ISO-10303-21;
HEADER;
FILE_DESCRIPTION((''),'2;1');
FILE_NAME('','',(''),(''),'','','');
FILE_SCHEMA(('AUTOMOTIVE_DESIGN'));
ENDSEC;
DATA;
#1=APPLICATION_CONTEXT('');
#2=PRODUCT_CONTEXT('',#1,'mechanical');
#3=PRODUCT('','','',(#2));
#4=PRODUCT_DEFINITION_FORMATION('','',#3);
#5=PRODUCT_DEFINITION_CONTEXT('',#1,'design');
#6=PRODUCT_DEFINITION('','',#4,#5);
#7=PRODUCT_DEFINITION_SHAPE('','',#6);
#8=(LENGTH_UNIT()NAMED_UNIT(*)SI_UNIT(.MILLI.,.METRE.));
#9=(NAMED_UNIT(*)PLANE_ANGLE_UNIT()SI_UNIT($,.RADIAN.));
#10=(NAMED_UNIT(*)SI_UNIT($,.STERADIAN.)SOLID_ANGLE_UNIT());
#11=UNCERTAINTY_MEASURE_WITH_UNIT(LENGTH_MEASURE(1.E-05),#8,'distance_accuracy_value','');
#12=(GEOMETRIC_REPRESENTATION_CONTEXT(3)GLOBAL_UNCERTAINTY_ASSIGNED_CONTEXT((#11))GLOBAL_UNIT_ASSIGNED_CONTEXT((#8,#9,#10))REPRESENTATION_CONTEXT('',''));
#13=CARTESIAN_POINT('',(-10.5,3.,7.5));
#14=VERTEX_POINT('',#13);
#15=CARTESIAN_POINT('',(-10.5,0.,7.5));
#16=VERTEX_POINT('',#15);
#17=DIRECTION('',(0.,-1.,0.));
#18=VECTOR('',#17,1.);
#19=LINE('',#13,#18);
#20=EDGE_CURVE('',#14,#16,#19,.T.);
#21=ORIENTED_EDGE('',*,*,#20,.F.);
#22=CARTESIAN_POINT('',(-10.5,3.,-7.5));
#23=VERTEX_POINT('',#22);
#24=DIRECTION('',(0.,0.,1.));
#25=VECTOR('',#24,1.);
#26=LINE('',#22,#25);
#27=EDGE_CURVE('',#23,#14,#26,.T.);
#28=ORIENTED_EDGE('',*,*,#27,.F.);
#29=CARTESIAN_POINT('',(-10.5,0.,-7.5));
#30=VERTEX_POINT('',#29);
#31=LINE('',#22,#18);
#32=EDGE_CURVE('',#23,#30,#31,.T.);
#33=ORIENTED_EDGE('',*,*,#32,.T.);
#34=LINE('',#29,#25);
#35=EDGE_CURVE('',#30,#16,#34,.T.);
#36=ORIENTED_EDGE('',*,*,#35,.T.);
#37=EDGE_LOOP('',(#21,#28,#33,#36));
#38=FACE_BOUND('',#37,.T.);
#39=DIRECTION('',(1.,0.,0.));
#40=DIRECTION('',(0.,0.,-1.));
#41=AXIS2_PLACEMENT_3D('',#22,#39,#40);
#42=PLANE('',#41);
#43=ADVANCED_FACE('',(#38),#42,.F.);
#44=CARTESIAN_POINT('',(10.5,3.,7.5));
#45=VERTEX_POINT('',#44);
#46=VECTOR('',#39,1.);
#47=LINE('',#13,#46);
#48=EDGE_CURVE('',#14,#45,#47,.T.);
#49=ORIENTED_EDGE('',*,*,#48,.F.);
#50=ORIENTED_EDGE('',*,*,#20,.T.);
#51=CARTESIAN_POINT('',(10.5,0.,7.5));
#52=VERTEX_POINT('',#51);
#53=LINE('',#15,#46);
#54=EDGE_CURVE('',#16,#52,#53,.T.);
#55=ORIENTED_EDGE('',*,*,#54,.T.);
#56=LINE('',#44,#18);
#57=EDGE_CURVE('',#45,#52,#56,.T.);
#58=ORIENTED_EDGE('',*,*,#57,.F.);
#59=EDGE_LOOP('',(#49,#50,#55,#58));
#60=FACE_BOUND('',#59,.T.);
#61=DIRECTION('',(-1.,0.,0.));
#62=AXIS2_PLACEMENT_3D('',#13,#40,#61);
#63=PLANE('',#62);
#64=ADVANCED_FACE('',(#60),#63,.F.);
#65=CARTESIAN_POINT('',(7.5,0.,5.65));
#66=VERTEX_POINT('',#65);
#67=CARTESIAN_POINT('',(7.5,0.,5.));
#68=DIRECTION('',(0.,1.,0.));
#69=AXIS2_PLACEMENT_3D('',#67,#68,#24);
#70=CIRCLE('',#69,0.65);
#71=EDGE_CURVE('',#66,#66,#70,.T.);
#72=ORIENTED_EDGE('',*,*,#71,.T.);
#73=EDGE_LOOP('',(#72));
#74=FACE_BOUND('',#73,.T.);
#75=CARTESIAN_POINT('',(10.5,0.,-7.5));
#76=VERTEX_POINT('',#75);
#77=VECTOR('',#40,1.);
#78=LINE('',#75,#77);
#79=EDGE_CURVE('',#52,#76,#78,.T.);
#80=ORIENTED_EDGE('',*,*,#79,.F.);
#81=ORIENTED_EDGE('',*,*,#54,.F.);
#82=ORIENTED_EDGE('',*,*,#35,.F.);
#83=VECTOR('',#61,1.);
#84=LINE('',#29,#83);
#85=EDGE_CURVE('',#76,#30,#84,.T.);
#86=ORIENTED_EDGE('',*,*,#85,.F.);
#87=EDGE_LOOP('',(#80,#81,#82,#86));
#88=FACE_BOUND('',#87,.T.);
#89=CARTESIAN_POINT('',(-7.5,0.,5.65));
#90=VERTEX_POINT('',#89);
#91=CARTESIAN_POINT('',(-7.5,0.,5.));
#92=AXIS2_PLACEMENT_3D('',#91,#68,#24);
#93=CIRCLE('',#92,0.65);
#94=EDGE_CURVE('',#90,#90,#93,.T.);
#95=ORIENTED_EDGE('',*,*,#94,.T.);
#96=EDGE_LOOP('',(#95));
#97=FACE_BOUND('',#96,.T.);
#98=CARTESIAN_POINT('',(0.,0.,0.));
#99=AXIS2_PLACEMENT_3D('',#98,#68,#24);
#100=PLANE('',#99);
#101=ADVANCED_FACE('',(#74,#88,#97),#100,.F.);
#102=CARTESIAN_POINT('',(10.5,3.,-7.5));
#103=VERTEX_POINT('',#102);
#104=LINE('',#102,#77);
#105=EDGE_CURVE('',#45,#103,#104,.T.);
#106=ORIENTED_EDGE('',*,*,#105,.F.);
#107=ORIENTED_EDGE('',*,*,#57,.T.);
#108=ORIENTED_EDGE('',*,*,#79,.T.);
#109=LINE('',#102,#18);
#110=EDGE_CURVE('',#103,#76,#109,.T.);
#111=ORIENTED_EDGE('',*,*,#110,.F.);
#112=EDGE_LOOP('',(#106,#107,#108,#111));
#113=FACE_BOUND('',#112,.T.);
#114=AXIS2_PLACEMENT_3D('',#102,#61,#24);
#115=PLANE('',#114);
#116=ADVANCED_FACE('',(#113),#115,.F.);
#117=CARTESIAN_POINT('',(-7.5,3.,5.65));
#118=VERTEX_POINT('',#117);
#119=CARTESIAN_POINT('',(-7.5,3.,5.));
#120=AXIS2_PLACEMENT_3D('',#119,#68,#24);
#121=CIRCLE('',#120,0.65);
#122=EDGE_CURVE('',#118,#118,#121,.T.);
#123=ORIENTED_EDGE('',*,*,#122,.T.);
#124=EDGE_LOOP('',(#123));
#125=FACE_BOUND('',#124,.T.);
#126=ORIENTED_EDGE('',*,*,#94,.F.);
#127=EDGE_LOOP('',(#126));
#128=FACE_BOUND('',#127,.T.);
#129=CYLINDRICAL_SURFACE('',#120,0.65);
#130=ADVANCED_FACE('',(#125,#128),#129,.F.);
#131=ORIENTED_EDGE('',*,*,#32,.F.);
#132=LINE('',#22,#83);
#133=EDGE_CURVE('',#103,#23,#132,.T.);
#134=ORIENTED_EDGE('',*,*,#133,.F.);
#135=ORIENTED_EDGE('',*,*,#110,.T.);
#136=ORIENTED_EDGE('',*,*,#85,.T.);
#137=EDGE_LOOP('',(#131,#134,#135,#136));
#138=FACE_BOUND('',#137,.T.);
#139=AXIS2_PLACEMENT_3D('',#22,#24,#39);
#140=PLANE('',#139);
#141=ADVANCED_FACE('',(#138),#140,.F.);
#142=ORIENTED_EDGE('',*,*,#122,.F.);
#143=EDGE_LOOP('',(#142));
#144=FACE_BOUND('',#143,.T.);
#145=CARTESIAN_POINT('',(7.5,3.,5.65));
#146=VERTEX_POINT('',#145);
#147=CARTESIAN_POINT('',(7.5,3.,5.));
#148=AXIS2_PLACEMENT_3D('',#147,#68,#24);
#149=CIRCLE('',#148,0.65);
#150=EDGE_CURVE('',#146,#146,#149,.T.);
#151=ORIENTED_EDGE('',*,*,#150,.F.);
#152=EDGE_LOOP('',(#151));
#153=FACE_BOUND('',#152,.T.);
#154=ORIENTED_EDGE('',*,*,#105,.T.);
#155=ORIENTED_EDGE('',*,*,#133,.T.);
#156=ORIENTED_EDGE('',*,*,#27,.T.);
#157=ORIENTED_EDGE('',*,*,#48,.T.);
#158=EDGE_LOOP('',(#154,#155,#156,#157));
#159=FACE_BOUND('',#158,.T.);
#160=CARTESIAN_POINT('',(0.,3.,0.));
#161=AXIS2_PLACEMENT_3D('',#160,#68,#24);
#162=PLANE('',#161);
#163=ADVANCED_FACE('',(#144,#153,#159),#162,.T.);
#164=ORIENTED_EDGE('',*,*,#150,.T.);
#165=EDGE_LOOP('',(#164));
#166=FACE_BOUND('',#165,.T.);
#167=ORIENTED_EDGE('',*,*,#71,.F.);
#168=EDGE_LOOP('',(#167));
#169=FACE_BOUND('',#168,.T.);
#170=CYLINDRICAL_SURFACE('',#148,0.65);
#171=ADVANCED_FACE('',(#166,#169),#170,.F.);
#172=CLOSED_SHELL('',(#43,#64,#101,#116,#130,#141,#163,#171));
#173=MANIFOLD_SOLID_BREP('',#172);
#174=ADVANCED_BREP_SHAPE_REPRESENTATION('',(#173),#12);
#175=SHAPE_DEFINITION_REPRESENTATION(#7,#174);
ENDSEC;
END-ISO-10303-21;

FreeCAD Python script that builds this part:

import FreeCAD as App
import Part
import Sketcher
from FreeCAD import Vector


def add_polygon(sketch, points):
    """Adds a closed chain of lines whose ends are joined by coincident constraints."""
    first, n = sketch.GeometryCount, len(points)
    for a, b in zip(points, points[1:] + points[:1]):
        sketch.addGeometry(Part.LineSegment(App.Vector(*a, 0), App.Vector(*b, 0)), False)
    for i in range(n):
        sketch.addConstraint(Sketcher.Constraint("Coincident", first + i, 2, first + (i + 1) % n, 1))

doc = App.newDocument("Part")
body = doc.addObject("PartDesign::Body", "Body")

# Sketch on XZ plane
sketch1 = body.newObject("Sketcher::SketchObject", "Sketch")
sketch1.AttachmentSupport = (doc.getObject("XZ_Plane"), [""])
sketch1.MapMode = "FlatFace"
add_polygon(sketch1, [(-10.5, -7.5), (-10.5, 7.5), (10.5, 7.5), (10.5, -7.5)])  # lines 0-3
sketch1.addConstraint(Sketcher.Constraint("Vertical", 0))
sketch1.addConstraint(Sketcher.Constraint("Horizontal", 1))
sketch1.addConstraint(Sketcher.Constraint("Vertical", 2))
sketch1.addConstraint(Sketcher.Constraint("Horizontal", 3))
sketch1.addConstraint(Sketcher.Constraint("Symmetric", 0, 2, 2, 2, -1, 1))
sketch1.addConstraint(Sketcher.Constraint("DistanceX", 1, 1, 1, 2, 21.0))
sketch1.addConstraint(Sketcher.Constraint("DistanceY", 0, 1, 0, 2, 15.0))
pad1 = body.newObject("PartDesign::Pad", "Pad")
pad1.Profile = sketch1
pad1.Length = 3
pad1.Reversed = True

# Sketch on XZ plane
sketch2 = body.newObject("Sketcher::SketchObject", "Sketch001")
sketch2.AttachmentSupport = (doc.getObject("XZ_Plane"), [""])
sketch2.MapMode = "FlatFace"
sketch2.AttachmentOffset = App.Placement(Vector(0, 0, -3), App.Rotation())
sketch2.addGeometry(Part.Circle(Vector(-7.5, 5, 0), Vector(0, 0, 1), 0.65), False)
sketch2.addGeometry(Part.Circle(Vector(7.5, 5, 0), Vector(0, 0, 1), 0.65), False)
sketch2.addConstraint(Sketcher.Constraint("Equal", 0, 1))
sketch2.addConstraint(Sketcher.Constraint("Symmetric", 0, 3, 1, 3, -2))
sketch2.addConstraint(Sketcher.Constraint("Diameter", 0, 1.3))
sketch2.addConstraint(Sketcher.Constraint("DistanceY", -1, 1, 0, 3, 5.0))
sketch2.addConstraint(Sketcher.Constraint("DistanceX", 0, 3, 1, 3, 15.0))
doc.recompute()
hole = body.newObject("PartDesign::Hole", "Hole")
hole.Profile = sketch2
hole.ThreadType = "None"
hole.Diameter = 1.3
hole.DepthType = "ThroughAll"
hole.Reversed = True

doc.recompute()
